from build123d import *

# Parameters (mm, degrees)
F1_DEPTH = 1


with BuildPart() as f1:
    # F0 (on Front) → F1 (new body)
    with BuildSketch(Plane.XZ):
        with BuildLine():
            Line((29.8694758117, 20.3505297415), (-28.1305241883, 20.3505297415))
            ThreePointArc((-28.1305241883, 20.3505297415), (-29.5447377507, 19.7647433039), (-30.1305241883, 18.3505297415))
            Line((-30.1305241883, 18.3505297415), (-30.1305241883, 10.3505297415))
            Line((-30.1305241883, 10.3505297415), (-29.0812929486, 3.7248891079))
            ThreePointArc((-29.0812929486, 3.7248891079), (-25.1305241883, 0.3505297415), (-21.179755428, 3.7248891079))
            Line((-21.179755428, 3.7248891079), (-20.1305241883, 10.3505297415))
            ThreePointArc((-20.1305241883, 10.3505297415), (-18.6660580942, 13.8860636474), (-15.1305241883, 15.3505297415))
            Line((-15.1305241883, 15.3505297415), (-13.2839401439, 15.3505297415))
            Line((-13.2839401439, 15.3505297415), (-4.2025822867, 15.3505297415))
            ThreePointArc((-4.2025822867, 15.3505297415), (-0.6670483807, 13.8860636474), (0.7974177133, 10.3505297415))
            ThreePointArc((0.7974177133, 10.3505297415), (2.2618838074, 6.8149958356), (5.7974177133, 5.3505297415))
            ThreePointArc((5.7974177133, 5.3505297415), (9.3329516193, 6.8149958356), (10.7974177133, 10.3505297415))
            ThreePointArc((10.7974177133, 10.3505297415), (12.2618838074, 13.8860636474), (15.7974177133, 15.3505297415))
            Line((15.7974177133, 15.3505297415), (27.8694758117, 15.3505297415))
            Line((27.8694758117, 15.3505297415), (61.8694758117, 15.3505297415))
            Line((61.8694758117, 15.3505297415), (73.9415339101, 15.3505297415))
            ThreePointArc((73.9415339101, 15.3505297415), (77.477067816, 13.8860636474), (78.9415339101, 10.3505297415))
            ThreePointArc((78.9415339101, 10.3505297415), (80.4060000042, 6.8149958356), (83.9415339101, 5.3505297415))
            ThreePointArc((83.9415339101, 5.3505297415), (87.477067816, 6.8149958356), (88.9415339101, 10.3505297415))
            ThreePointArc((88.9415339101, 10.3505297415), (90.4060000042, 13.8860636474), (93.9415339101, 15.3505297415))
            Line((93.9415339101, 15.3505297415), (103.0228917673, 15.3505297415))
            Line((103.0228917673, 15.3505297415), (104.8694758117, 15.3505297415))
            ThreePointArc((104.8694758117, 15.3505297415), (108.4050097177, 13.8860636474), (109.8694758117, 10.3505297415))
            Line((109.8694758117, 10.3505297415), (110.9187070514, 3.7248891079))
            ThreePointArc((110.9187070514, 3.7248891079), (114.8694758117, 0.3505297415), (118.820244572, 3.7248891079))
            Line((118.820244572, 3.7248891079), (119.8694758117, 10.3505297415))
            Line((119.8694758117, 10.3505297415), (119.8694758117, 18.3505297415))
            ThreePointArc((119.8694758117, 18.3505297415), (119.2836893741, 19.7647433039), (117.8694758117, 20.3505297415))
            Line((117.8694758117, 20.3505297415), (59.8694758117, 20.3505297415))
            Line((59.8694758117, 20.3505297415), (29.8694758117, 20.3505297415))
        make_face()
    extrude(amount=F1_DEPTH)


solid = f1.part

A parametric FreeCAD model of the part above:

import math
import FreeCAD as App
import Part
import Sketcher

V = App.Vector
Q = App.Units.Quantity

doc = App.newDocument("Part")
body = doc.addObject("PartDesign::Body", "Body")

sketch1 = body.newObject("Sketcher::SketchObject", "Sketch")
sketch1.AttachmentSupport = (doc.getObject("XZ_Plane"), [""])
sketch1.MapMode = "FlatFace"
sketch1.addGeometry([
    Part.ArcOfCircle(Part.Circle(V(-28.130524, 18.35053, 0), V(0, 0, 1), 2), math.radians(90), math.radians(180)),
    Part.LineSegment(V(-30.130524, 18.35053, 0), V(-30.130524, 10.35053, 0)),
    Part.LineSegment(V(-30.130524, 10.35053, 0), V(-29.081293, 3.724889, 0)),
    Part.ArcOfCircle(Part.Circle(V(-25.130524, 4.35053, 0), V(0, 0, 1), 4), math.radians(-171.00141), math.radians(-8.99859)),
    Part.LineSegment(V(-21.179755, 3.724889, 0), V(-20.130524, 10.35053, 0)),
    Part.ArcOfCircle(Part.Circle(V(-15.130524, 10.35053, 0), V(0, 0, 1), 5), math.radians(90), math.radians(180)),
    Part.LineSegment(V(-15.130524, 15.35053, 0), V(-4.202582, 15.35053, 0)),
    Part.ArcOfCircle(Part.Circle(V(-4.202582, 10.35053, 0), V(0, 0, 1), 5), math.radians(0), math.radians(90)),
    Part.ArcOfCircle(Part.Circle(V(5.797418, 10.35053, 0), V(0, 0, 1), 5), math.radians(180), math.radians(270)),
    Part.ArcOfCircle(Part.Circle(V(5.797418, 10.35053, 0), V(0, 0, 1), 5), math.radians(-90), math.radians(0)),
    Part.ArcOfCircle(Part.Circle(V(15.797418, 10.35053, 0), V(0, 0, 1), 5), math.radians(90), math.radians(180)),
    Part.LineSegment(V(15.797418, 15.35053, 0), V(73.941534, 15.35053, 0)),
    Part.ArcOfCircle(Part.Circle(V(73.941534, 10.35053, 0), V(0, 0, 1), 5), math.radians(0), math.radians(90)),
    Part.ArcOfCircle(Part.Circle(V(83.941534, 10.35053, 0), V(0, 0, 1), 5), math.radians(180), math.radians(270)),
    Part.ArcOfCircle(Part.Circle(V(83.941534, 10.35053, 0), V(0, 0, 1), 5), math.radians(-90), math.radians(0)),
    Part.ArcOfCircle(Part.Circle(V(93.941534, 10.35053, 0), V(0, 0, 1), 5), math.radians(90), math.radians(180)),
    Part.LineSegment(V(93.941534, 15.35053, 0), V(104.869476, 15.35053, 0)),
    Part.ArcOfCircle(Part.Circle(V(104.869476, 10.35053, 0), V(0, 0, 1), 5), math.radians(0), math.radians(90)),
    Part.LineSegment(V(109.869476, 10.35053, 0), V(110.918707, 3.724889, 0)),
    Part.ArcOfCircle(Part.Circle(V(114.869476, 4.35053, 0), V(0, 0, 1), 4), math.radians(-171.00141), math.radians(-8.99859)),
    Part.LineSegment(V(118.820245, 3.724889, 0), V(119.869476, 10.35053, 0)),
    Part.LineSegment(V(119.869476, 10.35053, 0), V(119.869476, 18.35053, 0)),
    Part.ArcOfCircle(Part.Circle(V(117.869476, 18.35053, 0), V(0, 0, 1), 2), math.radians(0), math.radians(90)),
    Part.LineSegment(V(117.869476, 20.35053, 0), V(-28.130524, 20.35053, 0)),
], False)
sketch1.addConstraint([
    Sketcher.Constraint("Tangent", 0, 2, 1, 1),
    Sketcher.Constraint("Coincident", 1, 2, 2, 1),
    Sketcher.Constraint("Tangent", 2, 2, 3, 1),
    Sketcher.Constraint("Tangent", 3, 2, 4, 1),
    Sketcher.Constraint("Coincident", 4, 2, 5, 2),
    Sketcher.Constraint("Tangent", 5, 1, 6, 1),
    Sketcher.Constraint("Tangent", 6, 2, 7, 2),
    Sketcher.Constraint("Tangent", 7, 1, 8, 1),
    Sketcher.Constraint("Tangent", 8, 2, 9, 1),
    Sketcher.Constraint("Tangent", 9, 2, 10, 2),
    Sketcher.Constraint("Tangent", 10, 1, 11, 1),
    Sketcher.Constraint("Tangent", 11, 2, 12, 2),
    Sketcher.Constraint("Tangent", 12, 1, 13, 1),
    Sketcher.Constraint("Tangent", 13, 2, 14, 1),
    Sketcher.Constraint("Tangent", 14, 2, 15, 2),
    Sketcher.Constraint("Tangent", 15, 1, 16, 1),
    Sketcher.Constraint("Tangent", 16, 2, 17, 2),
    Sketcher.Constraint("Coincident", 17, 1, 18, 1),
    Sketcher.Constraint("Tangent", 18, 2, 19, 1),
    Sketcher.Constraint("Tangent", 19, 2, 20, 1),
    Sketcher.Constraint("Coincident", 20, 2, 21, 1),
    Sketcher.Constraint("Tangent", 21, 2, 22, 1),
    Sketcher.Constraint("Tangent", 22, 2, 23, 1),
    Sketcher.Constraint("Tangent", 23, 2, 0, 1),
    Sketcher.Constraint("Vertical", 1),
    Sketcher.Constraint("Horizontal", 6),
    Sketcher.Constraint("Horizontal", 11),
    Sketcher.Constraint("Horizontal", 16),
    Sketcher.Constraint("Vertical", 21),
    Sketcher.Constraint("Horizontal", 23),
    Sketcher.Constraint("Equal", 5, 7),
    Sketcher.Constraint("Equal", 7, 8),
    Sketcher.Constraint("Equal", 8, 9),
    Sketcher.Constraint("Equal", 9, 10),
    Sketcher.Constraint("Equal", 10, 12),
    Sketcher.Constraint("Equal", 12, 13),
    Sketcher.Constraint("Equal", 13, 14),
    Sketcher.Constraint("Equal", 14, 15),
    Sketcher.Constraint("Equal", 15, 17),
    Sketcher.Constraint("Equal", 3, 19),
    Sketcher.Constraint("Equal", 0, 22),
    Sketcher.Constraint("Parallel", 2, 18),
    Sketcher.Constraint("Parallel", 4, 20),
    Sketcher.Constraint("Horizontal", 7, 3, 8, 3),
    Sketcher.Constraint("Horizontal", 9, 3, 10, 3),
    Sketcher.Constraint("Horizontal", 12, 3, 13, 3),
    Sketcher.Constraint("Horizontal", 14, 3, 15, 3),
    Sketcher.Constraint("Horizontal", 3, 3, 19, 3),
    Sketcher.Constraint("Horizontal", 17, 3, 1, 2),
    Sketcher.Constraint("Horizontal", 2, 2, 3, 2),
    Sketcher.Constraint("Horizontal", 1, 2, 4, 2),
    Sketcher.Constraint("Horizontal", 14, 2, 17, 1),
    Sketcher.Constraint("Horizontal", 17, 1, 20, 2),
    Sketcher.Constraint("Vertical", 9, 3, 8, 2),
    Sketcher.Constraint("Vertical", 14, 3, 13, 2),
    Sketcher.Constraint("Equal", 6, 16),
    Sketcher.Constraint("Radius", 0, Q("2 mm")),
    Sketcher.Constraint("Radius", 3, Q("4 mm")),
    Sketcher.Constraint("Radius", 5, Q("5 mm")),
    Sketcher.Constraint("DistanceX", 23, 2, 23, 1, Q("146 mm")),
    Sketcher.Constraint("DistanceY", 1, 2, 1, 1, Q("8 mm")),
    Sketcher.Constraint("DistanceX", 0, 3, 3, 3, Q("3 mm")),
    Sketcher.Constraint("DistanceY", 3, 3, 0, 3, Q("14 mm")),
    Sketcher.Constraint("DistanceX", 6, 1, 6, 2, Q("10.927942 mm")),
    Sketcher.Constraint("DistanceY", -1, 1, 0, 3, Q("18.35053 mm")),
    Sketcher.Constraint("DistanceX", 0, 3, -1, 1, Q("28.130524 mm")),
])
pad1 = body.newObject("PartDesign::Pad", "Pad")
pad1.Profile = sketch1
pad1.Length = 1

doc.recompute()
